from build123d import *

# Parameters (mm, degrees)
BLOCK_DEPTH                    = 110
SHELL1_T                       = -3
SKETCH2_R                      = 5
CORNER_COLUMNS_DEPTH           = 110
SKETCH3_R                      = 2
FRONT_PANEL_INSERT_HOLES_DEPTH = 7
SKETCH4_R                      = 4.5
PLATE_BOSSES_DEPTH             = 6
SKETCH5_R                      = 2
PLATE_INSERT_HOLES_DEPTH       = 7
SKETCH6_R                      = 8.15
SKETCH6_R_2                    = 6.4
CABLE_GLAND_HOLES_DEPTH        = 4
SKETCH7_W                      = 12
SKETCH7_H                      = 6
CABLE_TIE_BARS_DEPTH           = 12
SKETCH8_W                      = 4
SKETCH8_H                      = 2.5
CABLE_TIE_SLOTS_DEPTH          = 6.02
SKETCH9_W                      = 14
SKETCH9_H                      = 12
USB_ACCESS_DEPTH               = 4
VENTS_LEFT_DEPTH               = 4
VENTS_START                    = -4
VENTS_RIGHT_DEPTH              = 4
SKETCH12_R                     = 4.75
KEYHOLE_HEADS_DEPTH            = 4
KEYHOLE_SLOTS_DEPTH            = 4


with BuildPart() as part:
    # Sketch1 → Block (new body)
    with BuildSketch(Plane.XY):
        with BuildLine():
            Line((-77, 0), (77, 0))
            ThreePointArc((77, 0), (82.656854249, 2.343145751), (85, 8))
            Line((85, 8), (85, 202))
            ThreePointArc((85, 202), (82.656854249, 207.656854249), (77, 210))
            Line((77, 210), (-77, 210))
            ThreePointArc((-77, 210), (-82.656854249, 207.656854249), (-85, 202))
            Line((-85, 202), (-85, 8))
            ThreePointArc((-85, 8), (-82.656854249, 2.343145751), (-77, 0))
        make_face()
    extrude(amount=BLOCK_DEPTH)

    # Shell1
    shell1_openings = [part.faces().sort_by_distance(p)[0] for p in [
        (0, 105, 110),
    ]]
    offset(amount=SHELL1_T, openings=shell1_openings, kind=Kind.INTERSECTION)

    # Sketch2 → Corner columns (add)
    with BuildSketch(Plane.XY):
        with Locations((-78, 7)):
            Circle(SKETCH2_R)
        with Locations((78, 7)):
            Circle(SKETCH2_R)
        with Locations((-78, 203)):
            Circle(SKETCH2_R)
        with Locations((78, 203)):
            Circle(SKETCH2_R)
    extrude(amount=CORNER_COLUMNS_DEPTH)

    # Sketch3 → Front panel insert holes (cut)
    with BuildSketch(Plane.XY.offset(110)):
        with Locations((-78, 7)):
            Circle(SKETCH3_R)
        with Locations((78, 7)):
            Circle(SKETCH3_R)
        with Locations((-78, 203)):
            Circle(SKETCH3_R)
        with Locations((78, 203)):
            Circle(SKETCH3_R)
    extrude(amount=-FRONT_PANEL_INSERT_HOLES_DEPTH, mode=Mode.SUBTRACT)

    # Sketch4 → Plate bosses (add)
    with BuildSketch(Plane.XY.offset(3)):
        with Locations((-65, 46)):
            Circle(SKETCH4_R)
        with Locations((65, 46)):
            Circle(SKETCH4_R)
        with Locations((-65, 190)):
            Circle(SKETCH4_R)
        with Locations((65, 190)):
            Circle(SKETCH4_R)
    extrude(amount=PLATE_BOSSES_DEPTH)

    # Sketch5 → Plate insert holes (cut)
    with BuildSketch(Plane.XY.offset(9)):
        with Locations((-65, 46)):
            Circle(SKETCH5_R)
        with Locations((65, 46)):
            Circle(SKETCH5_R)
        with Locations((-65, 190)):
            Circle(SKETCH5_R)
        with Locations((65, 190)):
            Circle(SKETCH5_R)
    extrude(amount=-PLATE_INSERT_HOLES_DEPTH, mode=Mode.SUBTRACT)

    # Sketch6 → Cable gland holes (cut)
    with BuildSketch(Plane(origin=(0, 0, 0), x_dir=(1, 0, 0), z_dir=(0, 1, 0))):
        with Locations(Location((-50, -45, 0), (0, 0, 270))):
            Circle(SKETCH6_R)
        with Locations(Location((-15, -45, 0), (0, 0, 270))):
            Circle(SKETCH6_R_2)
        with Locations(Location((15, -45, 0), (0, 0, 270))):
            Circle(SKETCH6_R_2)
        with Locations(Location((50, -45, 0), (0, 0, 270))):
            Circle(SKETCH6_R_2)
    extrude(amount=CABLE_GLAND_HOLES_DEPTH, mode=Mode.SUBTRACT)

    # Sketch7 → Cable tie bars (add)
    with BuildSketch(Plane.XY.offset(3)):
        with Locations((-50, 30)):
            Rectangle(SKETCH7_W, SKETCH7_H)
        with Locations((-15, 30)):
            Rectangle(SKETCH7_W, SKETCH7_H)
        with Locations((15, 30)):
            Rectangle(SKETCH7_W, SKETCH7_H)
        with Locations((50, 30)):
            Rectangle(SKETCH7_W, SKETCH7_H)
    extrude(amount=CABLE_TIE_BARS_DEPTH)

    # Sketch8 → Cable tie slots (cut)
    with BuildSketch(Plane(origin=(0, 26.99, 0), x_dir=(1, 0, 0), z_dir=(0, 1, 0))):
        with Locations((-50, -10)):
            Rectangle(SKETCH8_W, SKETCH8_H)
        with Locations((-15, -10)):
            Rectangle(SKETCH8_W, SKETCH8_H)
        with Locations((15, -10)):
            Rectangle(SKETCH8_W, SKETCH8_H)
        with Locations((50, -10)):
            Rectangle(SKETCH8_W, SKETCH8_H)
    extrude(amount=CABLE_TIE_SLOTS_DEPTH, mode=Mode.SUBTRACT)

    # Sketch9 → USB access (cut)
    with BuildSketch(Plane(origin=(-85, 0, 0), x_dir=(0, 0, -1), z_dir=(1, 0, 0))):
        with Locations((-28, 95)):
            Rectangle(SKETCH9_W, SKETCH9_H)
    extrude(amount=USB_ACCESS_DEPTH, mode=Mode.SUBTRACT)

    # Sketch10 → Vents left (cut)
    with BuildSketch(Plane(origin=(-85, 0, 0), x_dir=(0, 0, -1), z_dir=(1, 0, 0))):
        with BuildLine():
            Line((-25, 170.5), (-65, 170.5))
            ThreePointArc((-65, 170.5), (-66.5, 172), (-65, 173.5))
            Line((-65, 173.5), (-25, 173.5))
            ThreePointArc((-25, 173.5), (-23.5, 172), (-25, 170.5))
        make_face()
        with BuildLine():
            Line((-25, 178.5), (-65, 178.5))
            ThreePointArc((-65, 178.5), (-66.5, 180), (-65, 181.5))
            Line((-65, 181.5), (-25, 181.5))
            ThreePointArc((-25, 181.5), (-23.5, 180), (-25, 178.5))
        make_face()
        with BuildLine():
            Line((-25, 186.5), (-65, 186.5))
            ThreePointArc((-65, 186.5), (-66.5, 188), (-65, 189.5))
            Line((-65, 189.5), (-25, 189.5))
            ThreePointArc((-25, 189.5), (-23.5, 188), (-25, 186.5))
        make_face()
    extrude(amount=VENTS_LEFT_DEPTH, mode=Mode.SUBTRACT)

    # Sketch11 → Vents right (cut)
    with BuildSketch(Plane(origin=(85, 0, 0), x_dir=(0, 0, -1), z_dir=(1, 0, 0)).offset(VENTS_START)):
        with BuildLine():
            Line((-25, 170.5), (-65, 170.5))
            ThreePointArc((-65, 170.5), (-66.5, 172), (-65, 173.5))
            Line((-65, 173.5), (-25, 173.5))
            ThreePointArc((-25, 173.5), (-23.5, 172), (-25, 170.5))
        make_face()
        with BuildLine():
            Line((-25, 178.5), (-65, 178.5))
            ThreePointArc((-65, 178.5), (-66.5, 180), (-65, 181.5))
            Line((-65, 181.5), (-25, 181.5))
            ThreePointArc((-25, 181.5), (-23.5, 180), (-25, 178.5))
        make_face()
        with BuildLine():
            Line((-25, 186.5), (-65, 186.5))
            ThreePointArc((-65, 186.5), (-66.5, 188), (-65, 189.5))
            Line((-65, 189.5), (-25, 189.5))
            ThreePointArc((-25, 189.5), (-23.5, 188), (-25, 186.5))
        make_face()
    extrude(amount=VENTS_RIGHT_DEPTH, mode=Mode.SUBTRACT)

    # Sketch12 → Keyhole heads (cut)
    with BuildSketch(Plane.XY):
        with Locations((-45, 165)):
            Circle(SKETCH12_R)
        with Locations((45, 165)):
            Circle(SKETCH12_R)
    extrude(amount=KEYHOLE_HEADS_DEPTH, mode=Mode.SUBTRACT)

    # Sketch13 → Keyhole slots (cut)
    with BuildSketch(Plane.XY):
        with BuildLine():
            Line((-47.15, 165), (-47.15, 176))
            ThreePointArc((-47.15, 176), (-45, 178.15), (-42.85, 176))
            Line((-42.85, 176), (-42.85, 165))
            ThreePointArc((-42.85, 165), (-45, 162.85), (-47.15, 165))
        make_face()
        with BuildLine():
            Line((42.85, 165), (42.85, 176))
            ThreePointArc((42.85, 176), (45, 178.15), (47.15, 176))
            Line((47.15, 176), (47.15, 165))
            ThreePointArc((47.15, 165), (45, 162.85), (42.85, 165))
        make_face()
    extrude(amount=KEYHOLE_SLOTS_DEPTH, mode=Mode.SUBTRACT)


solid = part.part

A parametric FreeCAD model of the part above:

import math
import FreeCAD as App
import Part
import Sketcher

V = App.Vector


def faces_at(feature, points):
    """Names of the faces that lie closest to the given points."""
    faces = feature.Shape.Faces
    near = lambda p: min(range(len(faces)), key=lambda i: faces[i].distToShape(Part.Vertex(*p))[0])
    return sorted({f"Face{near(p) + 1}" for p in points})

doc = App.newDocument("Part")
body = doc.addObject("PartDesign::Body", "Body")

# Sketch on XY plane
sketch1 = doc.addObject("Sketcher::SketchObject", "Sketch")
body.addObject(sketch1)
sketch1.AttachmentSupport = (doc.XY_Plane, [""])
sketch1.MapMode = "FlatFace"
sketch1.addGeometry(Part.LineSegment(V(-77, 0, 0), V(77, 0, 0)), False)
sketch1.addGeometry(Part.ArcOfCircle(Part.Circle(V(77, 8, 0), V(0, 0, 1), 8), math.radians(-90), math.radians(0)), False)
sketch1.addGeometry(Part.LineSegment(V(85, 8, 0), V(85, 202, 0)), False)
sketch1.addGeometry(Part.ArcOfCircle(Part.Circle(V(77, 202, 0), V(0, 0, 1), 8), math.radians(0), math.radians(90)), False)
sketch1.addGeometry(Part.LineSegment(V(77, 210, 0), V(-77, 210, 0)), False)
sketch1.addGeometry(Part.ArcOfCircle(Part.Circle(V(-77, 202, 0), V(0, 0, 1), 8), math.radians(90), math.radians(180)), False)
sketch1.addGeometry(Part.LineSegment(V(-85, 202, 0), V(-85, 8, 0)), False)
sketch1.addGeometry(Part.ArcOfCircle(Part.Circle(V(-77, 8, 0), V(0, 0, 1), 8), math.radians(-180), math.radians(-90)), False)
sketch1.addConstraint(Sketcher.Constraint("Tangent", 0, 2, 1, 1))
sketch1.addConstraint(Sketcher.Constraint("Tangent", 1, 2, 2, 1))
sketch1.addConstraint(Sketcher.Constraint("Tangent", 2, 2, 3, 1))
sketch1.addConstraint(Sketcher.Constraint("Tangent", 3, 2, 4, 1))
sketch1.addConstraint(Sketcher.Constraint("Tangent", 4, 2, 5, 1))
sketch1.addConstraint(Sketcher.Constraint("Tangent", 5, 2, 6, 1))
sketch1.addConstraint(Sketcher.Constraint("Tangent", 6, 2, 7, 1))
sketch1.addConstraint(Sketcher.Constraint("Tangent", 7, 2, 0, 1))
sketch1.addConstraint(Sketcher.Constraint("Horizontal", 0))
sketch1.addConstraint(Sketcher.Constraint("Vertical", 2))
sketch1.addConstraint(Sketcher.Constraint("Horizontal", 4))
sketch1.addConstraint(Sketcher.Constraint("Vertical", 6))
sketch1.addConstraint(Sketcher.Constraint("Equal", 1, 3))
sketch1.addConstraint(Sketcher.Constraint("Equal", 3, 5))
sketch1.addConstraint(Sketcher.Constraint("Equal", 5, 7))
sketch1.addConstraint(Sketcher.Constraint("Symmetric", 0, 2, 7, 2, -1, 1))
sketch1.addConstraint(Sketcher.Constraint("Radius", 1, 8.0))
sketch1.addConstraint(Sketcher.Constraint("DistanceX", 0, 1, 0, 2, 154.0))
sketch1.addConstraint(Sketcher.Constraint("DistanceY", 2, 1, 2, 2, 194.0))
pad1 = doc.addObject("PartDesign::Pad", "Pad")
body.addObject(pad1)
pad1.Profile = sketch1
pad1.Length = 110
doc.recompute()

thickness = doc.addObject("PartDesign::Thickness", "Thickness")
body.addObject(thickness)
thickness.Base = (pad1, faces_at(pad1, [(0, 105, 110)]))
thickness.Value = 3
thickness.Reversed = True
thickness.Join = "Intersection"

# Sketch on XY plane
sketch2 = doc.addObject("Sketcher::SketchObject", "Sketch001")
body.addObject(sketch2)
sketch2.AttachmentSupport = (doc.XY_Plane, [""])
sketch2.MapMode = "FlatFace"
sketch2.addGeometry(Part.Circle(V(-78, 7, 0), V(0, 0, 1), 5), False)
sketch2.addGeometry(Part.Circle(V(78, 7, 0), V(0, 0, 1), 5), False)
sketch2.addGeometry(Part.Circle(V(-78, 203, 0), V(0, 0, 1), 5), False)
sketch2.addGeometry(Part.Circle(V(78, 203, 0), V(0, 0, 1), 5), False)
sketch2.addConstraint(Sketcher.Constraint("Equal", 0, 1))
sketch2.addConstraint(Sketcher.Constraint("Equal", 1, 2))
sketch2.addConstraint(Sketcher.Constraint("Equal", 2, 3))
sketch2.addConstraint(Sketcher.Constraint("Symmetric", 0, 3, 1, 3, -2))
sketch2.addConstraint(Sketcher.Constraint("Symmetric", 2, 3, 3, 3, -2))
sketch2.addConstraint(Sketcher.Constraint("Vertical", 0, 3, 2, 3))
sketch2.addConstraint(Sketcher.Constraint("Diameter", 0, 10.0))
sketch2.addConstraint(Sketcher.Constraint("DistanceX", 0, 3, -1, 1, 78.0))
sketch2.addConstraint(Sketcher.Constraint("DistanceY", -1, 1, 0, 3, 7.0))
sketch2.addConstraint(Sketcher.Constraint("DistanceY", -1, 1, 2, 3, 203.0))
pad2 = doc.addObject("PartDesign::Pad", "Pad001")
body.addObject(pad2)
pad2.Profile = sketch2
pad2.Length = 110

# Sketch on XY plane
sketch3 = doc.addObject("Sketcher::SketchObject", "Sketch002")
body.addObject(sketch3)
sketch3.AttachmentSupport = (doc.XY_Plane, [""])
sketch3.MapMode = "FlatFace"
sketch3.AttachmentOffset = App.Placement(V(0, 0, 110), App.Rotation())
sketch3.addGeometry(Part.Circle(V(-78, 7, 0), V(0, 0, 1), 2), False)
sketch3.addGeometry(Part.Circle(V(78, 7, 0), V(0, 0, 1), 2), False)
sketch3.addGeometry(Part.Circle(V(-78, 203, 0), V(0, 0, 1), 2), False)
sketch3.addGeometry(Part.Circle(V(78, 203, 0), V(0, 0, 1), 2), False)
sketch3.addConstraint(Sketcher.Constraint("Equal", 0, 1))
sketch3.addConstraint(Sketcher.Constraint("Equal", 1, 2))
sketch3.addConstraint(Sketcher.Constraint("Equal", 2, 3))
sketch3.addConstraint(Sketcher.Constraint("Symmetric", 0, 3, 1, 3, -2))
sketch3.addConstraint(Sketcher.Constraint("Symmetric", 2, 3, 3, 3, -2))
sketch3.addConstraint(Sketcher.Constraint("Vertical", 0, 3, 2, 3))
sketch3.addConstraint(Sketcher.Constraint("Diameter", 0, 4.0))
sketch3.addConstraint(Sketcher.Constraint("DistanceX", 0, 3, -1, 1, 78.0))
sketch3.addConstraint(Sketcher.Constraint("DistanceY", -1, 1, 0, 3, 7.0))
sketch3.addConstraint(Sketcher.Constraint("DistanceY", -1, 1, 2, 3, 203.0))
pocket1 = doc.addObject("PartDesign::Pocket", "Pocket")
body.addObject(pocket1)
pocket1.Profile = sketch3
pocket1.Length = 7

# Sketch on XY plane
sketch4 = doc.addObject("Sketcher::SketchObject", "Sketch003")
body.addObject(sketch4)
sketch4.AttachmentSupport = (doc.XY_Plane, [""])
sketch4.MapMode = "FlatFace"
sketch4.AttachmentOffset = App.Placement(V(0, 0, 3), App.Rotation())
sketch4.addGeometry(Part.Circle(V(-65, 46, 0), V(0, 0, 1), 4.5), False)
sketch4.addGeometry(Part.Circle(V(65, 46, 0), V(0, 0, 1), 4.5), False)
sketch4.addGeometry(Part.Circle(V(-65, 190, 0), V(0, 0, 1), 4.5), False)
sketch4.addGeometry(Part.Circle(V(65, 190, 0), V(0, 0, 1), 4.5), False)
sketch4.addConstraint(Sketcher.Constraint("Equal", 0, 1))
sketch4.addConstraint(Sketcher.Constraint("Equal", 1, 2))
sketch4.addConstraint(Sketcher.Constraint("Equal", 2, 3))
sketch4.addConstraint(Sketcher.Constraint("Symmetric", 0, 3, 1, 3, -2))
sketch4.addConstraint(Sketcher.Constraint("Symmetric", 2, 3, 3, 3, -2))
sketch4.addConstraint(Sketcher.Constraint("Vertical", 0, 3, 2, 3))
sketch4.addConstraint(Sketcher.Constraint("Diameter", 0, 9.0))
sketch4.addConstraint(Sketcher.Constraint("DistanceX", 0, 3, -1, 1, 65.0))
sketch4.addConstraint(Sketcher.Constraint("DistanceY", -1, 1, 0, 3, 46.0))
sketch4.addConstraint(Sketcher.Constraint("DistanceY", -1, 1, 2, 3, 190.0))
pad3 = doc.addObject("PartDesign::Pad", "Pad002")
body.addObject(pad3)
pad3.Profile = sketch4
pad3.Length = 6

# Sketch on XY plane
sketch5 = doc.addObject("Sketcher::SketchObject", "Sketch004")
body.addObject(sketch5)
sketch5.AttachmentSupport = (doc.XY_Plane, [""])
sketch5.MapMode = "FlatFace"
sketch5.AttachmentOffset = App.Placement(V(0, 0, 9), App.Rotation())
sketch5.addGeometry(Part.Circle(V(-65, 46, 0), V(0, 0, 1), 2), False)
sketch5.addGeometry(Part.Circle(V(65, 46, 0), V(0, 0, 1), 2), False)
sketch5.addGeometry(Part.Circle(V(-65, 190, 0), V(0, 0, 1), 2), False)
sketch5.addGeometry(Part.Circle(V(65, 190, 0), V(0, 0, 1), 2), False)
sketch5.addConstraint(Sketcher.Constraint("Equal", 0, 1))
sketch5.addConstraint(Sketcher.Constraint("Equal", 1, 2))
sketch5.addConstraint(Sketcher.Constraint("Equal", 2, 3))
sketch5.addConstraint(Sketcher.Constraint("Symmetric", 0, 3, 1, 3, -2))
sketch5.addConstraint(Sketcher.Constraint("Symmetric", 2, 3, 3, 3, -2))
sketch5.addConstraint(Sketcher.Constraint("Vertical", 0, 3, 2, 3))
sketch5.addConstraint(Sketcher.Constraint("Diameter", 0, 4.0))
sketch5.addConstraint(Sketcher.Constraint("DistanceX", 0, 3, -1, 1, 65.0))
sketch5.addConstraint(Sketcher.Constraint("DistanceY", -1, 1, 0, 3, 46.0))
sketch5.addConstraint(Sketcher.Constraint("DistanceY", -1, 1, 2, 3, 190.0))
pocket2 = doc.addObject("PartDesign::Pocket", "Pocket001")
body.addObject(pocket2)
pocket2.Profile = sketch5
pocket2.Length = 7

# Sketch on XZ plane
sketch6 = doc.addObject("Sketcher::SketchObject", "Sketch005")
body.addObject(sketch6)
sketch6.AttachmentSupport = (doc.XZ_Plane, [""])
sketch6.MapMode = "FlatFace"
sketch6.addGeometry(Part.Circle(V(-50, 45, 0), V(0, 0, 1), 8.15), False)
sketch6.addGeometry(Part.Circle(V(-15, 45, 0), V(0, 0, 1), 6.4), False)
sketch6.addGeometry(Part.Circle(V(15, 45, 0), V(0, 0, 1), 6.4), False)
sketch6.addGeometry(Part.Circle(V(50, 45, 0), V(0, 0, 1), 6.4), False)
sketch6.addConstraint(Sketcher.Constraint("Equal", 1, 2))
sketch6.addConstraint(Sketcher.Constraint("Equal", 2, 3))
sketch6.addConstraint(Sketcher.Constraint("Symmetric", 1, 3, 2, 3, -2))
sketch6.addConstraint(Sketcher.Constraint("Symmetric", 0, 3, 3, 3, -2))
sketch6.addConstraint(Sketcher.Constraint("Horizontal", 0, 3, 1, 3))
sketch6.addConstraint(Sketcher.Constraint("Diameter", 0, 16.3))
sketch6.addConstraint(Sketcher.Constraint("Diameter", 1, 12.8))
sketch6.addConstraint(Sketcher.Constraint("DistanceX", 0, 3, -1, 1, 50.0))
sketch6.addConstraint(Sketcher.Constraint("DistanceY", -1, 1, 0, 3, 45.0))
sketch6.addConstraint(Sketcher.Constraint("DistanceX", 1, 3, -1, 1, 15.0))
pocket3 = doc.addObject("PartDesign::Pocket", "Pocket002")
body.addObject(pocket3)
pocket3.Profile = sketch6
pocket3.Length = 4

# Sketch on XY plane
sketch7 = doc.addObject("Sketcher::SketchObject", "Sketch006")
body.addObject(sketch7)
sketch7.AttachmentSupport = (doc.XY_Plane, [""])
sketch7.MapMode = "FlatFace"
sketch7.AttachmentOffset = App.Placement(V(0, 0, 3), App.Rotation())
sketch7.addGeometry(Part.LineSegment(V(-56, 33, 0), V(-56, 27, 0)), False)
sketch7.addGeometry(Part.LineSegment(V(-56, 27, 0), V(-44, 27, 0)), False)
sketch7.addGeometry(Part.LineSegment(V(-44, 27, 0), V(-44, 33, 0)), False)
sketch7.addGeometry(Part.LineSegment(V(-44, 33, 0), V(-56, 33, 0)), False)
sketch7.addGeometry(Part.LineSegment(V(-21, 33, 0), V(-21, 27, 0)), False)
sketch7.addGeometry(Part.LineSegment(V(-21, 27, 0), V(-9, 27, 0)), False)
sketch7.addGeometry(Part.LineSegment(V(-9, 27, 0), V(-9, 33, 0)), False)
sketch7.addGeometry(Part.LineSegment(V(-9, 33, 0), V(-21, 33, 0)), False)
sketch7.addGeometry(Part.LineSegment(V(9, 33, 0), V(9, 27, 0)), False)
sketch7.addGeometry(Part.LineSegment(V(9, 27, 0), V(21, 27, 0)), False)
sketch7.addGeometry(Part.LineSegment(V(21, 27, 0), V(21, 33, 0)), False)
sketch7.addGeometry(Part.LineSegment(V(21, 33, 0), V(9, 33, 0)), False)
sketch7.addGeometry(Part.LineSegment(V(44, 33, 0), V(44, 27, 0)), False)
sketch7.addGeometry(Part.LineSegment(V(44, 27, 0), V(56, 27, 0)), False)
sketch7.addGeometry(Part.LineSegment(V(56, 27, 0), V(56, 33, 0)), False)
sketch7.addGeometry(Part.LineSegment(V(56, 33, 0), V(44, 33, 0)), False)
sketch7.addConstraint(Sketcher.Constraint("Coincident", 0, 2, 1, 1))
sketch7.addConstraint(Sketcher.Constraint("Coincident", 1, 2, 2, 1))
sketch7.addConstraint(Sketcher.Constraint("Coincident", 2, 2, 3, 1))
sketch7.addConstraint(Sketcher.Constraint("Coincident", 3, 2, 0, 1))
sketch7.addConstraint(Sketcher.Constraint("Coincident", 4, 2, 5, 1))
sketch7.addConstraint(Sketcher.Constraint("Coincident", 5, 2, 6, 1))
sketch7.addConstraint(Sketcher.Constraint("Coincident", 6, 2, 7, 1))
sketch7.addConstraint(Sketcher.Constraint("Coincident", 7, 2, 4, 1))
sketch7.addConstraint(Sketcher.Constraint("Coincident", 8, 2, 9, 1))
sketch7.addConstraint(Sketcher.Constraint("Coincident", 9, 2, 10, 1))
sketch7.addConstraint(Sketcher.Constraint("Coincident", 10, 2, 11, 1))
sketch7.addConstraint(Sketcher.Constraint("Coincident", 11, 2, 8, 1))
sketch7.addConstraint(Sketcher.Constraint("Coincident", 12, 2, 13, 1))
sketch7.addConstraint(Sketcher.Constraint("Coincident", 13, 2, 14, 1))
sketch7.addConstraint(Sketcher.Constraint("Coincident", 14, 2, 15, 1))
sketch7.addConstraint(Sketcher.Constraint("Coincident", 15, 2, 12, 1))
sketch7.addConstraint(Sketcher.Constraint("Vertical", 0))
sketch7.addConstraint(Sketcher.Constraint("Horizontal", 1))
sketch7.addConstraint(Sketcher.Constraint("Vertical", 2))
sketch7.addConstraint(Sketcher.Constraint("Horizontal", 3))
sketch7.addConstraint(Sketcher.Constraint("Vertical", 4))
sketch7.addConstraint(Sketcher.Constraint("Horizontal", 5))
sketch7.addConstraint(Sketcher.Constraint("Vertical", 6))
sketch7.addConstraint(Sketcher.Constraint("Horizontal", 7))
sketch7.addConstraint(Sketcher.Constraint("Vertical", 8))
sketch7.addConstraint(Sketcher.Constraint("Horizontal", 9))
sketch7.addConstraint(Sketcher.Constraint("Vertical", 10))
sketch7.addConstraint(Sketcher.Constraint("Horizontal", 11))
sketch7.addConstraint(Sketcher.Constraint("Vertical", 12))
sketch7.addConstraint(Sketcher.Constraint("Horizontal", 13))
sketch7.addConstraint(Sketcher.Constraint("Vertical", 14))
sketch7.addConstraint(Sketcher.Constraint("Horizontal", 15))
sketch7.addConstraint(Sketcher.Constraint("Symmetric", 5, 2, 8, 2, -2))
sketch7.addConstraint(Sketcher.Constraint("Symmetric", 7, 2, 10, 2, -2))
sketch7.addConstraint(Sketcher.Constraint("Symmetric", 1, 2, 12, 2, -2))
sketch7.addConstraint(Sketcher.Constraint("Symmetric", 3, 2, 14, 2, -2))
sketch7.addConstraint(Sketcher.Constraint("Horizontal", 1, 2, 4, 2))
sketch7.addConstraint(Sketcher.Constraint("Horizontal", 3, 2, 6, 2))
sketch7.addConstraint(Sketcher.Constraint("Equal", 3, 5))
sketch7.addConstraint(Sketcher.Constraint("DistanceX", 1, 1, 1, 2, 12.0))
sketch7.addConstraint(Sketcher.Constraint("DistanceY", 0, 2, 0, 1, 6.0))
sketch7.addConstraint(Sketcher.Constraint("DistanceX", 0, 2, -1, 1, 56.0))
sketch7.addConstraint(Sketcher.Constraint("DistanceY", -1, 1, 0, 2, 27.0))
sketch7.addConstraint(Sketcher.Constraint("DistanceX", 4, 2, -1, 1, 21.0))
pad4 = doc.addObject("PartDesign::Pad", "Pad003")
body.addObject(pad4)
pad4.Profile = sketch7
pad4.Length = 12

# Sketch on XZ plane
sketch8 = doc.addObject("Sketcher::SketchObject", "Sketch007")
body.addObject(sketch8)
sketch8.AttachmentSupport = (doc.XZ_Plane, [""])
sketch8.MapMode = "FlatFace"
sketch8.AttachmentOffset = App.Placement(V(0, 0, -26.99), App.Rotation())
sketch8.addGeometry(Part.LineSegment(V(-52, 8.75, 0), V(-52, 11.25, 0)), False)
sketch8.addGeometry(Part.LineSegment(V(-52, 11.25, 0), V(-48, 11.25, 0)), False)
sketch8.addGeometry(Part.LineSegment(V(-48, 11.25, 0), V(-48, 8.75, 0)), False)
sketch8.addGeometry(Part.LineSegment(V(-48, 8.75, 0), V(-52, 8.75, 0)), False)
sketch8.addGeometry(Part.LineSegment(V(-17, 8.75, 0), V(-17, 11.25, 0)), False)
sketch8.addGeometry(Part.LineSegment(V(-17, 11.25, 0), V(-13, 11.25, 0)), False)
sketch8.addGeometry(Part.LineSegment(V(-13, 11.25, 0), V(-13, 8.75, 0)), False)
sketch8.addGeometry(Part.LineSegment(V(-13, 8.75, 0), V(-17, 8.75, 0)), False)
sketch8.addGeometry(Part.LineSegment(V(13, 8.75, 0), V(13, 11.25, 0)), False)
sketch8.addGeometry(Part.LineSegment(V(13, 11.25, 0), V(17, 11.25, 0)), False)
sketch8.addGeometry(Part.LineSegment(V(17, 11.25, 0), V(17, 8.75, 0)), False)
sketch8.addGeometry(Part.LineSegment(V(17, 8.75, 0), V(13, 8.75, 0)), False)
sketch8.addGeometry(Part.LineSegment(V(48, 8.75, 0), V(48, 11.25, 0)), False)
sketch8.addGeometry(Part.LineSegment(V(48, 11.25, 0), V(52, 11.25, 0)), False)
sketch8.addGeometry(Part.LineSegment(V(52, 11.25, 0), V(52, 8.75, 0)), False)
sketch8.addGeometry(Part.LineSegment(V(52, 8.75, 0), V(48, 8.75, 0)), False)
sketch8.addConstraint(Sketcher.Constraint("Coincident", 0, 2, 1, 1))
sketch8.addConstraint(Sketcher.Constraint("Coincident", 1, 2, 2, 1))
sketch8.addConstraint(Sketcher.Constraint("Coincident", 2, 2, 3, 1))
sketch8.addConstraint(Sketcher.Constraint("Coincident", 3, 2, 0, 1))
sketch8.addConstraint(Sketcher.Constraint("Coincident", 4, 2, 5, 1))
sketch8.addConstraint(Sketcher.Constraint("Coincident", 5, 2, 6, 1))
sketch8.addConstraint(Sketcher.Constraint("Coincident", 6, 2, 7, 1))
sketch8.addConstraint(Sketcher.Constraint("Coincident", 7, 2, 4, 1))
sketch8.addConstraint(Sketcher.Constraint("Coincident", 8, 2, 9, 1))
sketch8.addConstraint(Sketcher.Constraint("Coincident", 9, 2, 10, 1))
sketch8.addConstraint(Sketcher.Constraint("Coincident", 10, 2, 11, 1))
sketch8.addConstraint(Sketcher.Constraint("Coincident", 11, 2, 8, 1))
sketch8.addConstraint(Sketcher.Constraint("Coincident", 12, 2, 13, 1))
sketch8.addConstraint(Sketcher.Constraint("Coincident", 13, 2, 14, 1))
sketch8.addConstraint(Sketcher.Constraint("Coincident", 14, 2, 15, 1))
sketch8.addConstraint(Sketcher.Constraint("Coincident", 15, 2, 12, 1))
sketch8.addConstraint(Sketcher.Constraint("Vertical", 0))
sketch8.addConstraint(Sketcher.Constraint("Horizontal", 1))
sketch8.addConstraint(Sketcher.Constraint("Vertical", 2))
sketch8.addConstraint(Sketcher.Constraint("Horizontal", 3))
sketch8.addConstraint(Sketcher.Constraint("Vertical", 4))
sketch8.addConstraint(Sketcher.Constraint("Horizontal", 5))
sketch8.addConstraint(Sketcher.Constraint("Vertical", 6))
sketch8.addConstraint(Sketcher.Constraint("Horizontal", 7))
sketch8.addConstraint(Sketcher.Constraint("Vertical", 8))
sketch8.addConstraint(Sketcher.Constraint("Horizontal", 9))
sketch8.addConstraint(Sketcher.Constraint("Vertical", 10))
sketch8.addConstraint(Sketcher.Constraint("Horizontal", 11))
sketch8.addConstraint(Sketcher.Constraint("Vertical", 12))
sketch8.addConstraint(Sketcher.Constraint("Horizontal", 13))
sketch8.addConstraint(Sketcher.Constraint("Vertical", 14))
sketch8.addConstraint(Sketcher.Constraint("Horizontal", 15))
sketch8.addConstraint(Sketcher.Constraint("Symmetric", 5, 2, 8, 2, -2))
sketch8.addConstraint(Sketcher.Constraint("Symmetric", 7, 2, 10, 2, -2))
sketch8.addConstraint(Sketcher.Constraint("Symmetric", 1, 2, 12, 2, -2))
sketch8.addConstraint(Sketcher.Constraint("Symmetric", 3, 2, 14, 2, -2))
sketch8.addConstraint(Sketcher.Constraint("Horizontal", 1, 2, 4, 2))
sketch8.addConstraint(Sketcher.Constraint("Horizontal", 3, 2, 6, 2))
sketch8.addConstraint(Sketcher.Constraint("Equal", 3, 5))
sketch8.addConstraint(Sketcher.Constraint("DistanceX", 1, 1, 1, 2, 4.0))
sketch8.addConstraint(Sketcher.Constraint("DistanceY", 0, 1, 0, 2, 2.5))
sketch8.addConstraint(Sketcher.Constraint("DistanceX", 0, 2, -1, 1, 52.0))
sketch8.addConstraint(Sketcher.Constraint("DistanceX", 4, 2, -1, 1, 17.0))
sketch8.addConstraint(Sketcher.Constraint("DistanceY", -1, 1, 0, 2, 11.25))
pocket4 = doc.addObject("PartDesign::Pocket", "Pocket003")
body.addObject(pocket4)
pocket4.Profile = sketch8
pocket4.Length = 6.02

# Sketch on YZ plane
sketch9 = doc.addObject("Sketcher::SketchObject", "Sketch008")
body.addObject(sketch9)
sketch9.AttachmentSupport = (doc.YZ_Plane, [""])
sketch9.MapMode = "FlatFace"
sketch9.AttachmentOffset = App.Placement(V(0, 0, -85), App.Rotation())
sketch9.addGeometry(Part.LineSegment(V(101, 35, 0), V(89, 35, 0)), False)
sketch9.addGeometry(Part.LineSegment(V(89, 35, 0), V(89, 21, 0)), False)
sketch9.addGeometry(Part.LineSegment(V(89, 21, 0), V(101, 21, 0)), False)
sketch9.addGeometry(Part.LineSegment(V(101, 21, 0), V(101, 35, 0)), False)
sketch9.addConstraint(Sketcher.Constraint("Coincident", 0, 2, 1, 1))
sketch9.addConstraint(Sketcher.Constraint("Coincident", 1, 2, 2, 1))
sketch9.addConstraint(Sketcher.Constraint("Coincident", 2, 2, 3, 1))
sketch9.addConstraint(Sketcher.Constraint("Coincident", 3, 2, 0, 1))
sketch9.addConstraint(Sketcher.Constraint("Horizontal", 0))
sketch9.addConstraint(Sketcher.Constraint("Vertical", 1))
sketch9.addConstraint(Sketcher.Constraint("Horizontal", 2))
sketch9.addConstraint(Sketcher.Constraint("Vertical", 3))
sketch9.addConstraint(Sketcher.Constraint("DistanceX", 0, 2, 0, 1, 12.0))
sketch9.addConstraint(Sketcher.Constraint("DistanceY", 1, 2, 1, 1, 14.0))
sketch9.addConstraint(Sketcher.Constraint("DistanceX", -1, 1, 0, 2, 89.0))
sketch9.addConstraint(Sketcher.Constraint("DistanceY", -1, 1, 0, 2, 35.0))
pocket5 = doc.addObject("PartDesign::Pocket", "Pocket004")
body.addObject(pocket5)
pocket5.Profile = sketch9
pocket5.Length = 4
pocket5.Reversed = True

# Sketch on YZ plane
sketch10 = doc.addObject("Sketcher::SketchObject", "Sketch009")
body.addObject(sketch10)
sketch10.AttachmentSupport = (doc.YZ_Plane, [""])
sketch10.MapMode = "FlatFace"
sketch10.AttachmentOffset = App.Placement(V(0, 0, -85), App.Rotation())
sketch10.addGeometry(Part.LineSegment(V(170.5, 65, 0), V(170.5, 25, 0)), False)
sketch10.addGeometry(Part.ArcOfCircle(Part.Circle(V(172, 25, 0), V(0, 0, 1), 1.5), math.radians(180), math.radians(360)), False)
sketch10.addGeometry(Part.LineSegment(V(173.5, 25, 0), V(173.5, 65, 0)), False)
sketch10.addGeometry(Part.ArcOfCircle(Part.Circle(V(172, 65, 0), V(0, 0, 1), 1.5), math.radians(0), math.radians(180)), False)
sketch10.addGeometry(Part.LineSegment(V(178.5, 65, 0), V(178.5, 25, 0)), False)
sketch10.addGeometry(Part.ArcOfCircle(Part.Circle(V(180, 25, 0), V(0, 0, 1), 1.5), math.radians(180), math.radians(360)), False)
sketch10.addGeometry(Part.LineSegment(V(181.5, 25, 0), V(181.5, 65, 0)), False)
sketch10.addGeometry(Part.ArcOfCircle(Part.Circle(V(180, 65, 0), V(0, 0, 1), 1.5), math.radians(0), math.radians(180)), False)
sketch10.addGeometry(Part.LineSegment(V(186.5, 65, 0), V(186.5, 25, 0)), False)
sketch10.addGeometry(Part.ArcOfCircle(Part.Circle(V(188, 25, 0), V(0, 0, 1), 1.5), math.radians(180), math.radians(360)), False)
sketch10.addGeometry(Part.LineSegment(V(189.5, 25, 0), V(189.5, 65, 0)), False)
sketch10.addGeometry(Part.ArcOfCircle(Part.Circle(V(188, 65, 0), V(0, 0, 1), 1.5), math.radians(0), math.radians(180)), False)
sketch10.addConstraint(Sketcher.Constraint("Tangent", 0, 2, 1, 1))
sketch10.addConstraint(Sketcher.Constraint("Tangent", 1, 2, 2, 1))
sketch10.addConstraint(Sketcher.Constraint("Tangent", 2, 2, 3, 1))
sketch10.addConstraint(Sketcher.Constraint("Tangent", 3, 2, 0, 1))
sketch10.addConstraint(Sketcher.Constraint("Tangent", 4, 2, 5, 1))
sketch10.addConstraint(Sketcher.Constraint("Tangent", 5, 2, 6, 1))
sketch10.addConstraint(Sketcher.Constraint("Tangent", 6, 2, 7, 1))
sketch10.addConstraint(Sketcher.Constraint("Tangent", 7, 2, 4, 1))
sketch10.addConstraint(Sketcher.Constraint("Tangent", 8, 2, 9, 1))
sketch10.addConstraint(Sketcher.Constraint("Tangent", 9, 2, 10, 1))
sketch10.addConstraint(Sketcher.Constraint("Tangent", 10, 2, 11, 1))
sketch10.addConstraint(Sketcher.Constraint("Tangent", 11, 2, 8, 1))
sketch10.addConstraint(Sketcher.Constraint("Vertical", 0))
sketch10.addConstraint(Sketcher.Constraint("Vertical", 2))
sketch10.addConstraint(Sketcher.Constraint("Vertical", 4))
sketch10.addConstraint(Sketcher.Constraint("Vertical", 6))
sketch10.addConstraint(Sketcher.Constraint("Vertical", 8))
sketch10.addConstraint(Sketcher.Constraint("Vertical", 10))
sketch10.addConstraint(Sketcher.Constraint("Equal", 3, 5))
sketch10.addConstraint(Sketcher.Constraint("Equal", 7, 9))
sketch10.addConstraint(Sketcher.Constraint("Horizontal", 1, 3, 5, 3))
sketch10.addConstraint(Sketcher.Constraint("Horizontal", 3, 3, 7, 3))
sketch10.addConstraint(Sketcher.Constraint("Horizontal", 5, 3, 9, 3))
sketch10.addConstraint(Sketcher.Constraint("Horizontal", 7, 3, 11, 3))
sketch10.addConstraint(Sketcher.Constraint("Radius", 1, 1.5))
sketch10.addConstraint(Sketcher.Constraint("DistanceY", 0, 2, 0, 1, 40.0))
sketch10.addConstraint(Sketcher.Constraint("DistanceX", -1, 1, 1, 3, 172.0))
sketch10.addConstraint(Sketcher.Constraint("DistanceY", -1, 1, 1, 3, 25.0))
sketch10.addConstraint(Sketcher.Constraint("DistanceX", -1, 1, 5, 3, 180.0))
sketch10.addConstraint(Sketcher.Constraint("DistanceX", -1, 1, 9, 3, 188.0))
pocket6 = doc.addObject("PartDesign::Pocket", "Pocket005")
body.addObject(pocket6)
pocket6.Profile = sketch10
pocket6.Length = 4
pocket6.Reversed = True

# Sketch on YZ plane
sketch11 = doc.addObject("Sketcher::SketchObject", "Sketch010")
body.addObject(sketch11)
sketch11.AttachmentSupport = (doc.YZ_Plane, [""])
sketch11.MapMode = "FlatFace"
sketch11.AttachmentOffset = App.Placement(V(0, 0, 81), App.Rotation())
sketch11.addGeometry(Part.LineSegment(V(170.5, 65, 0), V(170.5, 25, 0)), False)
sketch11.addGeometry(Part.ArcOfCircle(Part.Circle(V(172, 25, 0), V(0, 0, 1), 1.5), math.radians(180), math.radians(360)), False)
sketch11.addGeometry(Part.LineSegment(V(173.5, 25, 0), V(173.5, 65, 0)), False)
sketch11.addGeometry(Part.ArcOfCircle(Part.Circle(V(172, 65, 0), V(0, 0, 1), 1.5), math.radians(0), math.radians(180)), False)
sketch11.addGeometry(Part.LineSegment(V(178.5, 65, 0), V(178.5, 25, 0)), False)
sketch11.addGeometry(Part.ArcOfCircle(Part.Circle(V(180, 25, 0), V(0, 0, 1), 1.5), math.radians(180), math.radians(360)), False)
sketch11.addGeometry(Part.LineSegment(V(181.5, 25, 0), V(181.5, 65, 0)), False)
sketch11.addGeometry(Part.ArcOfCircle(Part.Circle(V(180, 65, 0), V(0, 0, 1), 1.5), math.radians(0), math.radians(180)), False)
sketch11.addGeometry(Part.LineSegment(V(186.5, 65, 0), V(186.5, 25, 0)), False)
sketch11.addGeometry(Part.ArcOfCircle(Part.Circle(V(188, 25, 0), V(0, 0, 1), 1.5), math.radians(180), math.radians(360)), False)
sketch11.addGeometry(Part.LineSegment(V(189.5, 25, 0), V(189.5, 65, 0)), False)
sketch11.addGeometry(Part.ArcOfCircle(Part.Circle(V(188, 65, 0), V(0, 0, 1), 1.5), math.radians(0), math.radians(180)), False)
sketch11.addConstraint(Sketcher.Constraint("Tangent", 0, 2, 1, 1))
sketch11.addConstraint(Sketcher.Constraint("Tangent", 1, 2, 2, 1))
sketch11.addConstraint(Sketcher.Constraint("Tangent", 2, 2, 3, 1))
sketch11.addConstraint(Sketcher.Constraint("Tangent", 3, 2, 0, 1))
sketch11.addConstraint(Sketcher.Constraint("Tangent", 4, 2, 5, 1))
sketch11.addConstraint(Sketcher.Constraint("Tangent", 5, 2, 6, 1))
sketch11.addConstraint(Sketcher.Constraint("Tangent", 6, 2, 7, 1))
sketch11.addConstraint(Sketcher.Constraint("Tangent", 7, 2, 4, 1))
sketch11.addConstraint(Sketcher.Constraint("Tangent", 8, 2, 9, 1))
sketch11.addConstraint(Sketcher.Constraint("Tangent", 9, 2, 10, 1))
sketch11.addConstraint(Sketcher.Constraint("Tangent", 10, 2, 11, 1))
sketch11.addConstraint(Sketcher.Constraint("Tangent", 11, 2, 8, 1))
sketch11.addConstraint(Sketcher.Constraint("Vertical", 0))
sketch11.addConstraint(Sketcher.Constraint("Vertical", 2))
sketch11.addConstraint(Sketcher.Constraint("Vertical", 4))
sketch11.addConstraint(Sketcher.Constraint("Vertical", 6))
sketch11.addConstraint(Sketcher.Constraint("Vertical", 8))
sketch11.addConstraint(Sketcher.Constraint("Vertical", 10))
sketch11.addConstraint(Sketcher.Constraint("Equal", 3, 5))
sketch11.addConstraint(Sketcher.Constraint("Equal", 7, 9))
sketch11.addConstraint(Sketcher.Constraint("Horizontal", 1, 3, 5, 3))
sketch11.addConstraint(Sketcher.Constraint("Horizontal", 3, 3, 7, 3))
sketch11.addConstraint(Sketcher.Constraint("Horizontal", 5, 3, 9, 3))
sketch11.addConstraint(Sketcher.Constraint("Horizontal", 7, 3, 11, 3))
sketch11.addConstraint(Sketcher.Constraint("Radius", 1, 1.5))
sketch11.addConstraint(Sketcher.Constraint("DistanceY", 0, 2, 0, 1, 40.0))
sketch11.addConstraint(Sketcher.Constraint("DistanceX", -1, 1, 1, 3, 172.0))
sketch11.addConstraint(Sketcher.Constraint("DistanceY", -1, 1, 1, 3, 25.0))
sketch11.addConstraint(Sketcher.Constraint("DistanceX", -1, 1, 5, 3, 180.0))
sketch11.addConstraint(Sketcher.Constraint("DistanceX", -1, 1, 9, 3, 188.0))
pocket7 = doc.addObject("PartDesign::Pocket", "Pocket006")
body.addObject(pocket7)
pocket7.Profile = sketch11
pocket7.Length = 4
pocket7.Reversed = True

# Sketch on XY plane
sketch12 = doc.addObject("Sketcher::SketchObject", "Sketch011")
body.addObject(sketch12)
sketch12.AttachmentSupport = (doc.XY_Plane, [""])
sketch12.MapMode = "FlatFace"
sketch12.addGeometry(Part.Circle(V(-45, 165, 0), V(0, 0, 1), 4.75), False)
sketch12.addGeometry(Part.Circle(V(45, 165, 0), V(0, 0, 1), 4.75), False)
sketch12.addConstraint(Sketcher.Constraint("Equal", 0, 1))
sketch12.addConstraint(Sketcher.Constraint("Symmetric", 0, 3, 1, 3, -2))
sketch12.addConstraint(Sketcher.Constraint("Diameter", 0, 9.5))
sketch12.addConstraint(Sketcher.Constraint("DistanceX", 0, 3, -1, 1, 45.0))
sketch12.addConstraint(Sketcher.Constraint("DistanceY", -1, 1, 0, 3, 165.0))
pocket8 = doc.addObject("PartDesign::Pocket", "Pocket007")
body.addObject(pocket8)
pocket8.Profile = sketch12
pocket8.Length = 4
pocket8.Reversed = True

# Sketch on XY plane
sketch13 = doc.addObject("Sketcher::SketchObject", "Sketch012")
body.addObject(sketch13)
sketch13.AttachmentSupport = (doc.XY_Plane, [""])
sketch13.MapMode = "FlatFace"
sketch13.addGeometry(Part.LineSegment(V(-47.15, 176, 0), V(-47.15, 165, 0)), False)
sketch13.addGeometry(Part.ArcOfCircle(Part.Circle(V(-45, 165, 0), V(0, 0, 1), 2.15), math.radians(180), math.radians(360)), False)
sketch13.addGeometry(Part.LineSegment(V(-42.85, 165, 0), V(-42.85, 176, 0)), False)
sketch13.addGeometry(Part.ArcOfCircle(Part.Circle(V(-45, 176, 0), V(0, 0, 1), 2.15), math.radians(0), math.radians(180)), False)
sketch13.addGeometry(Part.LineSegment(V(42.85, 176, 0), V(42.85, 165, 0)), False)
sketch13.addGeometry(Part.ArcOfCircle(Part.Circle(V(45, 165, 0), V(0, 0, 1), 2.15), math.radians(180), math.radians(360)), False)
sketch13.addGeometry(Part.LineSegment(V(47.15, 165, 0), V(47.15, 176, 0)), False)
sketch13.addGeometry(Part.ArcOfCircle(Part.Circle(V(45, 176, 0), V(0, 0, 1), 2.15), math.radians(0), math.radians(180)), False)
sketch13.addConstraint(Sketcher.Constraint("Tangent", 0, 2, 1, 1))
sketch13.addConstraint(Sketcher.Constraint("Tangent", 1, 2, 2, 1))
sketch13.addConstraint(Sketcher.Constraint("Tangent", 2, 2, 3, 1))
sketch13.addConstraint(Sketcher.Constraint("Tangent", 3, 2, 0, 1))
sketch13.addConstraint(Sketcher.Constraint("Tangent", 4, 2, 5, 1))
sketch13.addConstraint(Sketcher.Constraint("Tangent", 5, 2, 6, 1))
sketch13.addConstraint(Sketcher.Constraint("Tangent", 6, 2, 7, 1))
sketch13.addConstraint(Sketcher.Constraint("Tangent", 7, 2, 4, 1))
sketch13.addConstraint(Sketcher.Constraint("Vertical", 0))
sketch13.addConstraint(Sketcher.Constraint("Vertical", 2))
sketch13.addConstraint(Sketcher.Constraint("Vertical", 4))
sketch13.addConstraint(Sketcher.Constraint("Vertical", 6))
sketch13.addConstraint(Sketcher.Constraint("Equal", 3, 5))
sketch13.addConstraint(Sketcher.Constraint("Symmetric", 1, 3, 5, 3, -2))
sketch13.addConstraint(Sketcher.Constraint("Horizontal", 3, 3, 7, 3))
sketch13.addConstraint(Sketcher.Constraint("DistanceY", 0, 2, 0, 1, 11.0))
sketch13.addConstraint(Sketcher.Constraint("Radius", 1, 2.15))
sketch13.addConstraint(Sketcher.Constraint("DistanceX", 1, 3, -1, 1, 45.0))
sketch13.addConstraint(Sketcher.Constraint("DistanceY", -1, 1, 1, 3, 165.0))
pocket9 = doc.addObject("PartDesign::Pocket", "Pocket008")
body.addObject(pocket9)
pocket9.Profile = sketch13
pocket9.Length = 4
pocket9.Reversed = True

doc.recompute()
